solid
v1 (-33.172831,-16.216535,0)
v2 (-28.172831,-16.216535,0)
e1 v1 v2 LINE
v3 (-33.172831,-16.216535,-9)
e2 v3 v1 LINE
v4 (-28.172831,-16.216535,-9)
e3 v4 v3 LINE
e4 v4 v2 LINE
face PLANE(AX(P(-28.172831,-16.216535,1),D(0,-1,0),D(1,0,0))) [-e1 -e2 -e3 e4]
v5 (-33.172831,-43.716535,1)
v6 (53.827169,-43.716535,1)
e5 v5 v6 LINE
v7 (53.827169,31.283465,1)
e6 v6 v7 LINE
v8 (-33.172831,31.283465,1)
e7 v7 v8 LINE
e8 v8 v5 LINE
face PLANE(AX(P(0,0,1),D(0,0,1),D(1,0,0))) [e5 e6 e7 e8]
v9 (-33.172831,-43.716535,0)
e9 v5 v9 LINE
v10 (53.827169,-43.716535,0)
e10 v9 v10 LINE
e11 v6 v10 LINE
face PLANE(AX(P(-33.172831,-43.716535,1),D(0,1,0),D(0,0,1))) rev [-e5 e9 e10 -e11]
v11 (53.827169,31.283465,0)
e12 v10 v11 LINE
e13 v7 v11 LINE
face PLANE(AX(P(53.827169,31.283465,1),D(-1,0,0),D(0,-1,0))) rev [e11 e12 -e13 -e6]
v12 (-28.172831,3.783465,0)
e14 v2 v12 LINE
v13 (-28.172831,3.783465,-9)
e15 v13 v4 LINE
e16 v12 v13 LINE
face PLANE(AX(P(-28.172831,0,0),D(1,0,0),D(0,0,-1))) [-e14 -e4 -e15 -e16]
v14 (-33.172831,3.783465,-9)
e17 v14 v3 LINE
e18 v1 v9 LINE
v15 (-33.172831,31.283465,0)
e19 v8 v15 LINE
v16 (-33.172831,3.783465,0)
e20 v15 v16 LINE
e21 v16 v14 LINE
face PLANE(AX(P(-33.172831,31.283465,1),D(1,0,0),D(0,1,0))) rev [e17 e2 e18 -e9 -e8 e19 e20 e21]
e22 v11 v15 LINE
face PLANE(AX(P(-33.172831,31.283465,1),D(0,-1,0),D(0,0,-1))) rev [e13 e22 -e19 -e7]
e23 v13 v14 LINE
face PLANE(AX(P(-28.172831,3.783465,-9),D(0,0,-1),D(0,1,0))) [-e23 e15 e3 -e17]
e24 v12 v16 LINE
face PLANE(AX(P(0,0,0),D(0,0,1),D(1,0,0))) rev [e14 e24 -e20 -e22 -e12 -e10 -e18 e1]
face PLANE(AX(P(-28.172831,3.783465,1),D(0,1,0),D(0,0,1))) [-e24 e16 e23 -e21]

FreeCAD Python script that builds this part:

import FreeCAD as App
import Part
import Sketcher

V = App.Vector


def add_polygon(sketch, points):
    """Adds a closed chain of lines whose ends are joined by coincident constraints."""
    first, n = sketch.GeometryCount, len(points)
    for a, b in zip(points, points[1:] + points[:1]):
        sketch.addGeometry(Part.LineSegment(App.Vector(*a, 0), App.Vector(*b, 0)), False)
    for i in range(n):
        sketch.addConstraint(Sketcher.Constraint("Coincident", first + i, 2, first + (i + 1) % n, 1))

doc = App.newDocument("Part")
body = doc.addObject("PartDesign::Body", "Body")

sketch1 = body.newObject("Sketcher::SketchObject", "Sketch")
sketch1.AttachmentSupport = (doc.getObject("XY_Plane"), [""])
sketch1.MapMode = "FlatFace"
add_polygon(sketch1, [(-33.172831, 31.283465), (-33.172831, -43.716535), (53.827169, -43.716535), (53.827169, 31.283465)])
sketch1.addConstraint([
    Sketcher.Constraint("Vertical", 0),
    Sketcher.Constraint("Horizontal", 1),
    Sketcher.Constraint("Vertical", 2),
    Sketcher.Constraint("Horizontal", 3),
    Sketcher.Constraint("DistanceX", 1, 1, 1, 2, 87.0),
    Sketcher.Constraint("DistanceY", 0, 2, 0, 1, 75.0),
    Sketcher.Constraint("DistanceX", 0, 2, -1, 1, 33.172831),
    Sketcher.Constraint("DistanceY", 0, 2, -1, 1, 43.716535),
])
pad1 = body.newObject("PartDesign::Pad", "Pad")
pad1.Profile = sketch1
pad1.Length = 1

sketch2 = body.newObject("Sketcher::SketchObject", "Sketch001")
sketch2.AttachmentSupport = (doc.getObject("YZ_Plane"), [""])
sketch2.MapMode = "FlatFace"
sketch2.AttachmentOffset = App.Placement(V(0, 0, -33.172831), App.Rotation())
add_polygon(sketch2, [(3.783465, -9), (-16.216535, -9), (-16.216535, 1), (3.783465, 1)])
sketch2.addConstraint([
    Sketcher.Constraint("Horizontal", 0),
    Sketcher.Constraint("Vertical", 1),
    Sketcher.Constraint("Horizontal", 2),
    Sketcher.Constraint("Vertical", 3),
    Sketcher.Constraint("DistanceX", 0, 2, 0, 1, 20.0),
    Sketcher.Constraint("DistanceY", 1, 1, 1, 2, 10.0),
    Sketcher.Constraint("DistanceY", 0, 2, -1, 1, 9.0),
    Sketcher.Constraint("DistanceX", 0, 2, -1, 1, 16.216535),
])
pad2 = body.newObject("PartDesign::Pad", "Pad001")
pad2.Profile = sketch2
pad2.Length = 5

doc.recompute()
